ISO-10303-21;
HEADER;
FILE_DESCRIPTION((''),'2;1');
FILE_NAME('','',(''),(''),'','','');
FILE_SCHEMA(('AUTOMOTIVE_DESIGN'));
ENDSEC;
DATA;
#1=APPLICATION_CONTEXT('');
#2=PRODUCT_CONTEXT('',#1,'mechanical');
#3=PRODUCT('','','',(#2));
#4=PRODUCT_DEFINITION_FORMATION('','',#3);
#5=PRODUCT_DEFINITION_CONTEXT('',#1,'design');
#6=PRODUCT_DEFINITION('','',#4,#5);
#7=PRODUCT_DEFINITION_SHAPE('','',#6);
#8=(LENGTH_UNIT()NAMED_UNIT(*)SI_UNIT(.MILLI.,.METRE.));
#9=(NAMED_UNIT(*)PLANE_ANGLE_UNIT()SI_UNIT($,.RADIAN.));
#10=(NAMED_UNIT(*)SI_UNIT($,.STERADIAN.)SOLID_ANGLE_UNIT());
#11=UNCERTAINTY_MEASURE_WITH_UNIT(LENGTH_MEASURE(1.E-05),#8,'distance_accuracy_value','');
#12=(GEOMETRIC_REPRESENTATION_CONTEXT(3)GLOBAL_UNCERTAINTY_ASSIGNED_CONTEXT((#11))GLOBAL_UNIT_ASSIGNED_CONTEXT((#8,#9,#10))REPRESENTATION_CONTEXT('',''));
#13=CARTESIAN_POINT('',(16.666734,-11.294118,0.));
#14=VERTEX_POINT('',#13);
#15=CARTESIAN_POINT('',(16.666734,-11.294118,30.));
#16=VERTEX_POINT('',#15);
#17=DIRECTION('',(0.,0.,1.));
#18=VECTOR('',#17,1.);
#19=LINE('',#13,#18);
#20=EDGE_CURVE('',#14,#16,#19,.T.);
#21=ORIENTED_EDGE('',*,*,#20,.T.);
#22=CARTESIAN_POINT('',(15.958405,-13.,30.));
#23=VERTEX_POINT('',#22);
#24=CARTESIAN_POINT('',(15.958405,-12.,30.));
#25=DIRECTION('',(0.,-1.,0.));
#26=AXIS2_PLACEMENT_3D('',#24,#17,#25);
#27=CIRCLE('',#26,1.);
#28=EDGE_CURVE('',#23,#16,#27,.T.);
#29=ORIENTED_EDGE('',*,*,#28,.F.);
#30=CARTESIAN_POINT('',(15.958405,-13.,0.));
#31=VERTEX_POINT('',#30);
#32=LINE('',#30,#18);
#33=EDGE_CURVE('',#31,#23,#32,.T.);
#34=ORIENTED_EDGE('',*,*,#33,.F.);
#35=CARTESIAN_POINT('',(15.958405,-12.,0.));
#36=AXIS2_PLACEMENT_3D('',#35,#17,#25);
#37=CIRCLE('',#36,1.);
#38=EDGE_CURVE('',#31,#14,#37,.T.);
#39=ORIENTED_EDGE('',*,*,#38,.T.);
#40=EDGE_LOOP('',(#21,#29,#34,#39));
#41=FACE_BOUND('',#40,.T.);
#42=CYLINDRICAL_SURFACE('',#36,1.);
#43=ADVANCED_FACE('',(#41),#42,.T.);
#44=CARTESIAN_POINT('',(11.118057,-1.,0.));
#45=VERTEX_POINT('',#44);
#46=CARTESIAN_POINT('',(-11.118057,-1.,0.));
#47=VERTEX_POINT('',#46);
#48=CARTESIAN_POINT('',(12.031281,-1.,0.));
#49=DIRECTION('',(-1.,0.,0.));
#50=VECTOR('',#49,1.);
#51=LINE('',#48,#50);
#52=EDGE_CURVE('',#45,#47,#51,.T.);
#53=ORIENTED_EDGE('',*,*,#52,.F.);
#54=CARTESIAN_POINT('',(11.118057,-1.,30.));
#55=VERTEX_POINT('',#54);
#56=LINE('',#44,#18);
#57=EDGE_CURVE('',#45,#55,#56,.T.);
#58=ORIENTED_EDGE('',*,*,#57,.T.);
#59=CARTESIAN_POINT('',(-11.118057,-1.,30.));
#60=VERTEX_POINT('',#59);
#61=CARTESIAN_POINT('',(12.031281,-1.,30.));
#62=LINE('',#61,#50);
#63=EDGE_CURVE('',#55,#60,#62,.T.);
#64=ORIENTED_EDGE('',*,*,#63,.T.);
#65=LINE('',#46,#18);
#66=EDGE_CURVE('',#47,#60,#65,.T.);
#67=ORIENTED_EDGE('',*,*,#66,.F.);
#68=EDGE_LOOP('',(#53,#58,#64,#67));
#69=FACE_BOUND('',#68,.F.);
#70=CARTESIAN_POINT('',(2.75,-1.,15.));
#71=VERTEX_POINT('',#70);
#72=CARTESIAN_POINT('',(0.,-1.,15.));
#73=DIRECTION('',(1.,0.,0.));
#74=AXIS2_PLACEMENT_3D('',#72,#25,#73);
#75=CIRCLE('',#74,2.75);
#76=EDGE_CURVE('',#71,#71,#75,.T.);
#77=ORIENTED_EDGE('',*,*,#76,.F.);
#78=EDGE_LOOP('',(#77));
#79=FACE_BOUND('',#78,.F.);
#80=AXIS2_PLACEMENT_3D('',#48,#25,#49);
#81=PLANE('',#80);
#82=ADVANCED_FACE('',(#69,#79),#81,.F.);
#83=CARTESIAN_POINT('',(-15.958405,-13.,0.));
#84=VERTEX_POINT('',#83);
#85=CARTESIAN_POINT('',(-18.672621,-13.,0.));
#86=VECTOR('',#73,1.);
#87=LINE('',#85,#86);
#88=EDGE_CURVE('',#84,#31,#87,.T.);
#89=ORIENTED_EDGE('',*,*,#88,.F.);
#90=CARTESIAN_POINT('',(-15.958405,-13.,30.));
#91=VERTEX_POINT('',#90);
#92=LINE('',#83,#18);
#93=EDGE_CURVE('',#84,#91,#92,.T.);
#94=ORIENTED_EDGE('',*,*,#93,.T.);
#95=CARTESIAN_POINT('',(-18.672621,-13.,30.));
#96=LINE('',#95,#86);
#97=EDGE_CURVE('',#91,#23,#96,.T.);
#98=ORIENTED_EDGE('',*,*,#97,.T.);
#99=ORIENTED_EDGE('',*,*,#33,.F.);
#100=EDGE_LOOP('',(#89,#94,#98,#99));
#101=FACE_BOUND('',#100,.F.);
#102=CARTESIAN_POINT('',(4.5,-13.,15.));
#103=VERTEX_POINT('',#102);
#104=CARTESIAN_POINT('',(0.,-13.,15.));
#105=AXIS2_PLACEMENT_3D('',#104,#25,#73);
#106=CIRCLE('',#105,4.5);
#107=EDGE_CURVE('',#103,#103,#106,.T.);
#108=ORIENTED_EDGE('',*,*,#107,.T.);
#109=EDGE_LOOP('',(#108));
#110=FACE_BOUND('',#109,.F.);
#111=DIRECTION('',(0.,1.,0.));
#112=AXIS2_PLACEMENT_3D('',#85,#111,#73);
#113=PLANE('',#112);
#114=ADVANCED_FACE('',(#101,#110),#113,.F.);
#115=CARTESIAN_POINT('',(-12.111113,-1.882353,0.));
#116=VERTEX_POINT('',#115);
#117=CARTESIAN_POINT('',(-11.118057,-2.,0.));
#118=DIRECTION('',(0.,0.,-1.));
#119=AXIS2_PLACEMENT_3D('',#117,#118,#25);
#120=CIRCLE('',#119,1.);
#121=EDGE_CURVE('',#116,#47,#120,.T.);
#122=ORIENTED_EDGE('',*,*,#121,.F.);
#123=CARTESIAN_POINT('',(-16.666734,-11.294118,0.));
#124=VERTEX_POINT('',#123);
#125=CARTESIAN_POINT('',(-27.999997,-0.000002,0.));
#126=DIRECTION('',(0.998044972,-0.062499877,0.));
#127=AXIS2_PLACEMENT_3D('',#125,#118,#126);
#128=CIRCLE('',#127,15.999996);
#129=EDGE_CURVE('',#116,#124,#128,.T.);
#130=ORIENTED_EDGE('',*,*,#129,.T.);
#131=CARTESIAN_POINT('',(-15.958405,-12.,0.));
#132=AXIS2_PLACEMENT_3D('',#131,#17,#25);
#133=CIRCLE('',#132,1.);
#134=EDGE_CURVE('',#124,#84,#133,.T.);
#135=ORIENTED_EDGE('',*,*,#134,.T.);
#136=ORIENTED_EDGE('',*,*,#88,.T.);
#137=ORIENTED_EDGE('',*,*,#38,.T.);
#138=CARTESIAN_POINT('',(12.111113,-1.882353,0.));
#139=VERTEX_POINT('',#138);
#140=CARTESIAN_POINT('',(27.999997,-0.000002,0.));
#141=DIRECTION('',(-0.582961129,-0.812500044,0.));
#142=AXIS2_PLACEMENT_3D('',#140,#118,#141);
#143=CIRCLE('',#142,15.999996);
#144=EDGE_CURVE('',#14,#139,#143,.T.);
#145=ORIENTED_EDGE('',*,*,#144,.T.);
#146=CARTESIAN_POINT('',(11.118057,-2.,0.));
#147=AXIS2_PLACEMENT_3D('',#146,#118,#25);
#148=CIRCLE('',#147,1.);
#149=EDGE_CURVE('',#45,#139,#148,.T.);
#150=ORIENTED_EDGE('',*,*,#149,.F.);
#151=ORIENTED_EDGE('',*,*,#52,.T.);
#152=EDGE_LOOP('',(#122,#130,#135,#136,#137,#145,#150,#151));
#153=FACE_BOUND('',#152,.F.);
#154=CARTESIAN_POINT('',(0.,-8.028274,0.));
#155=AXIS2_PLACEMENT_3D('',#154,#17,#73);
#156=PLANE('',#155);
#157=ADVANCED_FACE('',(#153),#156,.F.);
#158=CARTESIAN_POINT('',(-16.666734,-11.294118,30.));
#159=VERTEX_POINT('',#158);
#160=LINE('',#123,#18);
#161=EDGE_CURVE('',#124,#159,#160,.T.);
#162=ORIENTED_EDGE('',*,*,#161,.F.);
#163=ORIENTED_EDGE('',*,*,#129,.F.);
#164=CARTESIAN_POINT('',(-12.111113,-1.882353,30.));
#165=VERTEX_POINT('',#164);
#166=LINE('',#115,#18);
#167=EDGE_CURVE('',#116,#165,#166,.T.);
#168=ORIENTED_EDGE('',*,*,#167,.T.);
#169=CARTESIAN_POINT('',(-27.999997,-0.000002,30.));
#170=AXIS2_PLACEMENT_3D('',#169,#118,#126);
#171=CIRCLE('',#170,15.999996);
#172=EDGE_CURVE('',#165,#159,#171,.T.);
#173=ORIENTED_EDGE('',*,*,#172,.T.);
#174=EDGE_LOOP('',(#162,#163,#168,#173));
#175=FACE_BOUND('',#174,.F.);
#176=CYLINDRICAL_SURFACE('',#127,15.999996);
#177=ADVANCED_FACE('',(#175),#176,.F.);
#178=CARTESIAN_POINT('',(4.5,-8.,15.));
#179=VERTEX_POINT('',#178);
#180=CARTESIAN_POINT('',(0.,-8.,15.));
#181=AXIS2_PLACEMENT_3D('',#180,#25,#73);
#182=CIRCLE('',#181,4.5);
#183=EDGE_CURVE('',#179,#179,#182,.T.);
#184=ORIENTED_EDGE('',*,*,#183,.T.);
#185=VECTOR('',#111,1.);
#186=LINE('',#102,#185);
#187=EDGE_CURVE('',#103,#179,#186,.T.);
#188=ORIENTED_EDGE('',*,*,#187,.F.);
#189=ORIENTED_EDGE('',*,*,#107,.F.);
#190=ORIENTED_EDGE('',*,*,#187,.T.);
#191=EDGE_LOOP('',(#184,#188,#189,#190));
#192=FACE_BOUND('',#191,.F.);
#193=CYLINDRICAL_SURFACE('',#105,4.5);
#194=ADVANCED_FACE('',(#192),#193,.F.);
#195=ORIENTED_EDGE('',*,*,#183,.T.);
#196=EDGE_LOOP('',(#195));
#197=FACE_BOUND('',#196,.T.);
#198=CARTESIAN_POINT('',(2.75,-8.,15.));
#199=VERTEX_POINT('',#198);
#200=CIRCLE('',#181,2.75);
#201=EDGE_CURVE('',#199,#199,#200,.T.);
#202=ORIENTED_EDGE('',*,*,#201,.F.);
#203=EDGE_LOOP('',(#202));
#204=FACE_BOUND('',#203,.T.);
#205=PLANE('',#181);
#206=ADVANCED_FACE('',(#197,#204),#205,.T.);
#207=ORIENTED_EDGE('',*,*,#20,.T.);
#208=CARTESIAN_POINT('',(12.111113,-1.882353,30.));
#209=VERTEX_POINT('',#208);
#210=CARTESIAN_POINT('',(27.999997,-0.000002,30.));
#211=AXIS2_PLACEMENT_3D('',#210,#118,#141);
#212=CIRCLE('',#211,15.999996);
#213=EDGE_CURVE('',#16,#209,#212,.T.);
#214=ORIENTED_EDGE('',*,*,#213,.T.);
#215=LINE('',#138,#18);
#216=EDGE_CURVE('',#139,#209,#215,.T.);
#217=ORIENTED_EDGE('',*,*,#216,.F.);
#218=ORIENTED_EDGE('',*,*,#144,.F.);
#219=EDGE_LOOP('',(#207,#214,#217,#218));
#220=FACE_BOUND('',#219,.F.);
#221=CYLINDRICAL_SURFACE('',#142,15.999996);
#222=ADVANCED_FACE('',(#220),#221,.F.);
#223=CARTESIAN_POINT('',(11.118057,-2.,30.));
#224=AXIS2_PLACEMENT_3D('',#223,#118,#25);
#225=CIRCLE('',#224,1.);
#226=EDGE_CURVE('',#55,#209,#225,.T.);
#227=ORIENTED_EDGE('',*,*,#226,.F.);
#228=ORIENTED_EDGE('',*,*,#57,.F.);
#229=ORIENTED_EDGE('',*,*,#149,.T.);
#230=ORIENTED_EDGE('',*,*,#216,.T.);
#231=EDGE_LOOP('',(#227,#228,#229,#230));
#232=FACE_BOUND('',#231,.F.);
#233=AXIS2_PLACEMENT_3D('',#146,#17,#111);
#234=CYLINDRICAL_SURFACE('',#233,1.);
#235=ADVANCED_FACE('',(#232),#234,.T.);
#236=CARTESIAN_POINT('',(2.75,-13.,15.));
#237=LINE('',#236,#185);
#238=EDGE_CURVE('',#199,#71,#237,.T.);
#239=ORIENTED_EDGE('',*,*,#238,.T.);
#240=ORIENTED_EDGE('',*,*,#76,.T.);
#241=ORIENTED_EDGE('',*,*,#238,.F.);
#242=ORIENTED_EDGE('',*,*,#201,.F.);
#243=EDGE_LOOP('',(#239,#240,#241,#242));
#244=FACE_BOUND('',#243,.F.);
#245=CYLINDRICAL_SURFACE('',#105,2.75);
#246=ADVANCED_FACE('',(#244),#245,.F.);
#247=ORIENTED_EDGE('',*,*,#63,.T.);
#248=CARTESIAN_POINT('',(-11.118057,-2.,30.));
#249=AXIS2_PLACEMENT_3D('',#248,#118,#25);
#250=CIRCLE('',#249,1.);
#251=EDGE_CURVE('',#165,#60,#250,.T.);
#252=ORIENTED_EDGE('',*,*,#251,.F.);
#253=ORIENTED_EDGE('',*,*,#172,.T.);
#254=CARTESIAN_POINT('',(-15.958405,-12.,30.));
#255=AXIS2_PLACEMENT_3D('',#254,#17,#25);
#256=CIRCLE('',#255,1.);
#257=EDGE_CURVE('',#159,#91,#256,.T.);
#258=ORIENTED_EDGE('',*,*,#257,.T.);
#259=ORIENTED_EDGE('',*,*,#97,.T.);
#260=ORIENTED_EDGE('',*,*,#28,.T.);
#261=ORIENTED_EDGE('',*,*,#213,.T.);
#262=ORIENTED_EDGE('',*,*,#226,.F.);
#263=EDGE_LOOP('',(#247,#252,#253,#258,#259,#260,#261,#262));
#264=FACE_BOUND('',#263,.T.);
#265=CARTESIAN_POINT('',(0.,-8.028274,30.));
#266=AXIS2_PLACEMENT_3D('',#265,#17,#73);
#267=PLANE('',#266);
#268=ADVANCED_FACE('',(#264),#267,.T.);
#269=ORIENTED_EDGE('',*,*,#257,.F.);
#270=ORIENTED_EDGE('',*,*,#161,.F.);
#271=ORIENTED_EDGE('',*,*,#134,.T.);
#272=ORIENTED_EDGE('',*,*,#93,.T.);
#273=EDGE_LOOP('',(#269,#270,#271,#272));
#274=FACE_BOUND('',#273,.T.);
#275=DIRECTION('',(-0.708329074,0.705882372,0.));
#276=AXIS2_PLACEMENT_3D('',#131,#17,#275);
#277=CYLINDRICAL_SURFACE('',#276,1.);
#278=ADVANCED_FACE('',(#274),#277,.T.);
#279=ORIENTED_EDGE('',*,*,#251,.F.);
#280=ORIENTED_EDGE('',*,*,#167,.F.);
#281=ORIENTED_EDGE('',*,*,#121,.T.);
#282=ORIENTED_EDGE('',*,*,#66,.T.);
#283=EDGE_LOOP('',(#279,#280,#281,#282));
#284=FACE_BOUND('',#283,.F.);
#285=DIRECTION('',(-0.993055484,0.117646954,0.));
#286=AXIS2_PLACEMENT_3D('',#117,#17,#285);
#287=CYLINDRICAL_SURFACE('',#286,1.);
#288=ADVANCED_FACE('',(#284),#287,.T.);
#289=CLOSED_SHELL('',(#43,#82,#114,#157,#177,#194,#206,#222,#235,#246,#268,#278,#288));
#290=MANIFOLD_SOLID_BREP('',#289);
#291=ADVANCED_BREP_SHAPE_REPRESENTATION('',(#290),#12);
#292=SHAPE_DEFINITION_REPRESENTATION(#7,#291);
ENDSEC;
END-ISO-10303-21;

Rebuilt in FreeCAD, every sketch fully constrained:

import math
import FreeCAD as App
import Part
import Sketcher
from FreeCAD import Vector
Q = App.Units.Quantity


def edges_at(feature, points):
    """Names of the edges that pass closest to the given points."""
    edges = feature.Shape.Edges
    near = lambda p: min(range(len(edges)), key=lambda i: edges[i].distToShape(Part.Vertex(*p))[0])
    return sorted({f"Edge{near(p) + 1}" for p in points})

doc = App.newDocument("Part")
params = doc.addObject("Spreadsheet::Sheet", "Params")
for row, (alias, value) in enumerate([
    ("pad1_length", "30 mm"),
    ("sketch2_diameter", "9 mm"),
    ("sketch2_diameter2", "5.5 mm"),
    ("pocket1_length", "5 mm"),
    ("sketch3_diameter", "5.5 mm"),
    ("fillet_radius", "1 mm"),
], start=1):
    params.set(f"A{row}", alias)
    params.set(f"B{row}", "=" + value)
    params.setAlias(f"B{row}", alias)

body = doc.addObject("PartDesign::Body", "Body")

sketch1 = body.newObject("Sketcher::SketchObject", "Sketch")
sketch1.AttachmentSupport = (doc.getObject("XY_Plane"), [""])
sketch1.MapMode = "FlatFace"
sketch1.addGeometry([
    Part.ArcOfCircle(Part.Circle(Vector(-28, 0, 0), Vector(0, 0, 1), 16), math.radians(-54), math.radians(-4)),
    Part.LineSegment(Vector(-19, -13, 0), Vector(19, -13, 0)),
    Part.ArcOfCircle(Part.Circle(Vector(28, 0, 0), Vector(0, 0, 1), 16), math.radians(-176), math.radians(-126)),
    Part.LineSegment(Vector(12, -1, 0), Vector(-12, -1, 0)),
], False)
sketch1.addConstraint([
    Sketcher.Constraint("Coincident", 0, 1, 1, 1),
    Sketcher.Constraint("Coincident", 1, 2, 2, 2),
    Sketcher.Constraint("Coincident", 2, 1, 3, 1),
    Sketcher.Constraint("Coincident", 3, 2, 0, 2),
    Sketcher.Constraint("Horizontal", 1),
    Sketcher.Constraint("Horizontal", 3),
    Sketcher.Constraint("Equal", 0, 2),
    Sketcher.Constraint("Symmetric", 0, 3, 2, 3, -1, 1),
    Sketcher.Constraint("Horizontal", 0, 3, 2, 3),
    Sketcher.Constraint("DistanceY", 0, 1, -1, 1, Q("13 mm")),
    Sketcher.Constraint("DistanceY", 2, 1, -1, 1, Q("1 mm")),
    Sketcher.Constraint("Radius", 0, Q("15.999996 mm")),
    Sketcher.Constraint("DistanceX", 3, 2, 3, 1, Q("24.062562 mm")),
])
pad1 = body.newObject("PartDesign::Pad", "Pad")
pad1.Profile = sketch1
pad1.setExpression("Length", "Params.pad1_length")

sketch2 = body.newObject("Sketcher::SketchObject", "Sketch001")
sketch2.AttachmentSupport = (doc.getObject("XZ_Plane"), [""])
sketch2.MapMode = "FlatFace"
sketch2.AttachmentOffset = App.Placement(Vector(0, 0, 13), App.Rotation())
sketch2.addGeometry([
    Part.Circle(Vector(0, 15, 0), Vector(0, 0, 1), 4.5),
    Part.Circle(Vector(0, 15, 0), Vector(0, 0, 1), 2.8),
], False)
sketch2.addConstraint([
    Sketcher.Constraint("Coincident", 1, 3, 0, 3),
    Sketcher.Constraint("PointOnObject", 0, 3, -2),
    Sketcher.Constraint("Diameter", 0, Q("9 mm")),
    Sketcher.Constraint("Diameter", 1, Q("5.5 mm")),
    Sketcher.Constraint("DistanceY", -1, 1, 0, 3, Q("15 mm")),
])
sketch2.setExpression("Constraints[2]", "Params.sketch2_diameter")
sketch2.setExpression("Constraints[3]", "Params.sketch2_diameter2")
pocket1 = body.newObject("PartDesign::Pocket", "Pocket")
pocket1.Profile = sketch2
pocket1.setExpression("Length", "Params.pocket1_length")

sketch3 = body.newObject("Sketcher::SketchObject", "Sketch002")
sketch3.AttachmentSupport = (doc.getObject("XZ_Plane"), [""])
sketch3.MapMode = "FlatFace"
sketch3.AttachmentOffset = App.Placement(Vector(0, 0, 13), App.Rotation())
sketch3.addGeometry(Part.Circle(Vector(0, 15, 0), Vector(0, 0, 1), 2.8), False)
sketch3.addConstraint([
    Sketcher.Constraint("PointOnObject", 0, 3, -2),
    Sketcher.Constraint("Diameter", 0, Q("5.5 mm")),
    Sketcher.Constraint("DistanceY", -1, 1, 0, 3, Q("15 mm")),
])
sketch3.setExpression("Constraints[1]", "Params.sketch3_diameter")
pocket2 = body.newObject("PartDesign::Pocket", "Pocket001")
pocket2.Profile = sketch3
pocket2.Type = "ThroughAll"
doc.recompute()

fillet = body.newObject("PartDesign::Fillet", "Fillet")
fillet.Base = (pocket2, edges_at(pocket2, [
    (-18.673, -13, 15),
    (-12.031, -1, 15),
    (18.673, -13, 15),
    (12.031, -1, 15),
]))
fillet.setExpression("Radius", "Params.fillet_radius")

doc.recompute()
